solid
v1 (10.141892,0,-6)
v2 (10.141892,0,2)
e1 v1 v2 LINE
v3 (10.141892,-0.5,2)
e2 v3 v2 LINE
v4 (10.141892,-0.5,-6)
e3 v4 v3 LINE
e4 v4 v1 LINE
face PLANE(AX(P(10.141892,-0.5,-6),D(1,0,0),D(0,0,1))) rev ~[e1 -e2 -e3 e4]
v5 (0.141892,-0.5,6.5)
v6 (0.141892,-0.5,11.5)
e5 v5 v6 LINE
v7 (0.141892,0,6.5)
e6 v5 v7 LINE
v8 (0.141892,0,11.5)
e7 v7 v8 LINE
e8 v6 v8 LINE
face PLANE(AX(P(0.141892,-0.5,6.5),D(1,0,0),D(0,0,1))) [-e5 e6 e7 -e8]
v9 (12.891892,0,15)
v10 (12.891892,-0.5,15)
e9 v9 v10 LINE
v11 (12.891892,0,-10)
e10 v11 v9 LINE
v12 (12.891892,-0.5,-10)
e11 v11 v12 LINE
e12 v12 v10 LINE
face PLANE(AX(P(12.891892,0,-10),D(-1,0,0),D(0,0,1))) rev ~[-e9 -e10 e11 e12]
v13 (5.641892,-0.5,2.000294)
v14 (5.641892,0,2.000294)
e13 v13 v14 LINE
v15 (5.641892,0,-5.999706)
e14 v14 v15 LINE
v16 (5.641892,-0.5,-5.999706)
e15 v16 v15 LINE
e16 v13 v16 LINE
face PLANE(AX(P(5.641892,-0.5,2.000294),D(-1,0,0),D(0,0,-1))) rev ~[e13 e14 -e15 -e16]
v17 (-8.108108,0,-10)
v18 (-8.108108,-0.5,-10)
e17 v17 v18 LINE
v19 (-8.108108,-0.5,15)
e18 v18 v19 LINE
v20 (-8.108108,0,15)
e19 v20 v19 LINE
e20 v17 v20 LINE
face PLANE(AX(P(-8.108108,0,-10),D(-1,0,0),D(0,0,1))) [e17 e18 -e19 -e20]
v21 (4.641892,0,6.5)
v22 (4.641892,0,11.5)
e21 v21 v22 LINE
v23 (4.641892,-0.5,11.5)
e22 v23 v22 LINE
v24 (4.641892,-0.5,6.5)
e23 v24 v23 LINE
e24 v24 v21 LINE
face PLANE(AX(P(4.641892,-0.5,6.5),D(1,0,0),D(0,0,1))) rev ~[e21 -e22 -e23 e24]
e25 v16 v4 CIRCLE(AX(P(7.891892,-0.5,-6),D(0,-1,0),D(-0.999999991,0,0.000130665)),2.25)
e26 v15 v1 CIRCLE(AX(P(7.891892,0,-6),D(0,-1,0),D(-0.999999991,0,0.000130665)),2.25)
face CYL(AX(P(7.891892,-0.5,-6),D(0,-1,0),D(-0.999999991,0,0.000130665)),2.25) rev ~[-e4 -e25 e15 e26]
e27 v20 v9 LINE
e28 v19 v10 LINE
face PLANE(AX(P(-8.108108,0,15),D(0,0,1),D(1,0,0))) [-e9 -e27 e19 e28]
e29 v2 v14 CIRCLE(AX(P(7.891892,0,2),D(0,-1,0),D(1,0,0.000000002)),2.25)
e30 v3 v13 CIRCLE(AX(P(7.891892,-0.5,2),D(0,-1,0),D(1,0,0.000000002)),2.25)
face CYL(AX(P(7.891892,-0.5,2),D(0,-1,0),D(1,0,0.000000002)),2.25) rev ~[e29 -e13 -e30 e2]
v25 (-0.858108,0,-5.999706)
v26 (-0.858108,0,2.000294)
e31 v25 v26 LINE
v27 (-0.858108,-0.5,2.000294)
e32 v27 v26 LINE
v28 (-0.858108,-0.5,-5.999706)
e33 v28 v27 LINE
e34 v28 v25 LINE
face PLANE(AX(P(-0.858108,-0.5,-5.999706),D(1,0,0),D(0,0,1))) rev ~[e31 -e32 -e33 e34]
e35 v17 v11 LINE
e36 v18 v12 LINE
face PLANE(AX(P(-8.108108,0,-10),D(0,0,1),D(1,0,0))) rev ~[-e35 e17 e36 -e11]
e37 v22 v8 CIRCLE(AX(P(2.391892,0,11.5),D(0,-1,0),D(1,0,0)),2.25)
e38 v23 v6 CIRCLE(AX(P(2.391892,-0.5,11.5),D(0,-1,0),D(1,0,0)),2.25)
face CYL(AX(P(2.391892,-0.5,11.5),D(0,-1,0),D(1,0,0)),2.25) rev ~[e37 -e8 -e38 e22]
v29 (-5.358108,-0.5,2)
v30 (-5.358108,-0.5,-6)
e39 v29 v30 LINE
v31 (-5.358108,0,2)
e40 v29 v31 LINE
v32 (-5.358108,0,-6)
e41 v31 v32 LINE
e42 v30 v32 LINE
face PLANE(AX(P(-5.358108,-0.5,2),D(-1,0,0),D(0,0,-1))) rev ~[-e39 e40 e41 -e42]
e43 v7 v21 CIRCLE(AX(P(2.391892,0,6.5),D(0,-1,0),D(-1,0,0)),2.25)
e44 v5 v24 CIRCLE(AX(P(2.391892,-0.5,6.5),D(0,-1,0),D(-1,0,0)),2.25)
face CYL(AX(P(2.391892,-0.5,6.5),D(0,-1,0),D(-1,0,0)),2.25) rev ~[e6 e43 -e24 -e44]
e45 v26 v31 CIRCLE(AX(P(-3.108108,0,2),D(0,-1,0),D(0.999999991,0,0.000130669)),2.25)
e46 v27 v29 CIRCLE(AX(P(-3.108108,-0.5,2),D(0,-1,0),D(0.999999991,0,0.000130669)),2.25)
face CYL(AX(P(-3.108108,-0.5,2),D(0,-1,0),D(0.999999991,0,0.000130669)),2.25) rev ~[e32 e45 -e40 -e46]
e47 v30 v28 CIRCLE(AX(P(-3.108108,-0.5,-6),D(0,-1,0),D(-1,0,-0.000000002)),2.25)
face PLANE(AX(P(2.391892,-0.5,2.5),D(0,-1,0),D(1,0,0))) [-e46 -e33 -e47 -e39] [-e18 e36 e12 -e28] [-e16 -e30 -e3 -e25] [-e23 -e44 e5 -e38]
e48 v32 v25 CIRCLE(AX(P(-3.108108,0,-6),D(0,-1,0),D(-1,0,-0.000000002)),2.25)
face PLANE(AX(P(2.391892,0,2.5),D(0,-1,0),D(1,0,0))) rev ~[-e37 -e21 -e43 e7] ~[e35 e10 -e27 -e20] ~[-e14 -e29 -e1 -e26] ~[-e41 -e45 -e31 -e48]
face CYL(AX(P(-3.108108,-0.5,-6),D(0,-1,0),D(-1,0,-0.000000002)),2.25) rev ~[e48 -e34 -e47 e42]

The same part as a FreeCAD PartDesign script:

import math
import FreeCAD as App
import Part
import Sketcher
from FreeCAD import Vector
Q = App.Units.Quantity


def add_polygon(sketch, points):
    """Adds a closed chain of lines whose ends are joined by coincident constraints."""
    first, n = sketch.GeometryCount, len(points)
    for a, b in zip(points, points[1:] + points[:1]):
        sketch.addGeometry(Part.LineSegment(App.Vector(*a, 0), App.Vector(*b, 0)), False)
    for i in range(n):
        sketch.addConstraint(Sketcher.Constraint("Coincident", first + i, 2, first + (i + 1) % n, 1))

doc = App.newDocument("Part")
body = doc.addObject("PartDesign::Body", "Body")

# Sketch on XZ plane
sketch1 = doc.addObject("Sketcher::SketchObject", "Sketch")
body.addObject(sketch1)
sketch1.AttachmentSupport = (doc.XZ_Plane, [""])
sketch1.MapMode = "FlatFace"
add_polygon(sketch1, [(-8.108108, 15), (-8.108108, -10), (12.891892, -10), (12.891892, 15)])  # lines 0-3
sketch1.addConstraint(Sketcher.Constraint("Vertical", 0))
sketch1.addConstraint(Sketcher.Constraint("Horizontal", 1))
sketch1.addConstraint(Sketcher.Constraint("Vertical", 2))
sketch1.addConstraint(Sketcher.Constraint("Horizontal", 3))
sketch1.addConstraint(Sketcher.Constraint("DistanceX", 1, 1, 1, 2, Q("21 mm")))
sketch1.addConstraint(Sketcher.Constraint("DistanceY", 0, 2, 0, 1, Q("25 mm")))
sketch1.addConstraint(Sketcher.Constraint("DistanceY", 0, 2, -1, 1, Q("10 mm")))
sketch1.addConstraint(Sketcher.Constraint("DistanceX", 0, 2, -1, 1, Q("8.108108 mm")))
pad1 = doc.addObject("PartDesign::Pad", "Pad")
body.addObject(pad1)
pad1.Profile = sketch1
pad1.Length = 0.5

# Sketch on XZ plane
sketch2 = doc.addObject("Sketcher::SketchObject", "Sketch001")
body.addObject(sketch2)
sketch2.AttachmentSupport = (doc.XZ_Plane, [""])
sketch2.MapMode = "FlatFace"
sketch2.AttachmentOffset = App.Placement(Vector(0, 0, 0.5), App.Rotation())
sketch2.addGeometry(Part.ArcOfCircle(Part.Circle(Vector(-3.108108, -6, 0), Vector(0, 0, 1), 2.25), math.radians(-180), math.radians(0.007487)), False)
sketch2.addGeometry(Part.LineSegment(Vector(-0.858108, -5.999706, 0), Vector(-0.858108, 2.000294, 0)), False)
sketch2.addGeometry(Part.ArcOfCircle(Part.Circle(Vector(-3.108108, 2, 0), Vector(0, 0, 1), 2.25), math.radians(0.007487), math.radians(180)), False)
sketch2.addGeometry(Part.LineSegment(Vector(-5.358108, 2, 0), Vector(-5.358108, -6, 0)), False)
sketch2.addGeometry(Part.LineSegment(Vector(5.641892, 2.000294, 0), Vector(5.641892, -5.999706, 0)), False)
sketch2.addGeometry(Part.ArcOfCircle(Part.Circle(Vector(7.891892, -6, 0), Vector(0, 0, 1), 2.25), math.radians(179.992513), math.radians(360)), False)
sketch2.addGeometry(Part.LineSegment(Vector(10.141892, -6, 0), Vector(10.141892, 2, 0)), False)
sketch2.addGeometry(Part.ArcOfCircle(Part.Circle(Vector(7.891892, 2, 0), Vector(0, 0, 1), 2.25), math.radians(0), math.radians(179.992513)), False)
sketch2.addConstraint(Sketcher.Constraint("Coincident", 0, 2, 1, 1))
sketch2.addConstraint(Sketcher.Constraint("Coincident", 1, 2, 2, 1))
sketch2.addConstraint(Sketcher.Constraint("Tangent", 2, 2, 3, 1))
sketch2.addConstraint(Sketcher.Constraint("Tangent", 3, 2, 0, 1))
sketch2.addConstraint(Sketcher.Constraint("Coincident", 4, 2, 5, 1))
sketch2.addConstraint(Sketcher.Constraint("Tangent", 5, 2, 6, 1))
sketch2.addConstraint(Sketcher.Constraint("Tangent", 6, 2, 7, 1))
sketch2.addConstraint(Sketcher.Constraint("Coincident", 7, 2, 4, 1))
sketch2.addConstraint(Sketcher.Constraint("Vertical", 1))
sketch2.addConstraint(Sketcher.Constraint("Vertical", 3))
sketch2.addConstraint(Sketcher.Constraint("Vertical", 4))
sketch2.addConstraint(Sketcher.Constraint("Vertical", 6))
sketch2.addConstraint(Sketcher.Constraint("Equal", 2, 5))
sketch2.addConstraint(Sketcher.Constraint("Horizontal", 0, 3, 5, 3))
sketch2.addConstraint(Sketcher.Constraint("Horizontal", 2, 3, 7, 3))
sketch2.addConstraint(Sketcher.Constraint("Horizontal", 0, 2, 4, 2))
sketch2.addConstraint(Sketcher.Constraint("Horizontal", 1, 2, 7, 2))
sketch2.addConstraint(Sketcher.Constraint("Equal", 1, 3))
sketch2.addConstraint(Sketcher.Constraint("DistanceY", 1, 1, 1, 2, Q("8 mm")))
sketch2.addConstraint(Sketcher.Constraint("Radius", 0, Q("2.25 mm")))
sketch2.addConstraint(Sketcher.Constraint("DistanceY", 0, 3, -1, 1, Q("6 mm")))
sketch2.addConstraint(Sketcher.Constraint("DistanceX", 0, 3, 5, 3, Q("11 mm")))
sketch2.addConstraint(Sketcher.Constraint("DistanceX", -1, 1, 5, 3, Q("7.891892 mm")))
sketch2.addConstraint(Sketcher.Constraint("DistanceY", 0, 2, -1, 1, Q("5.999706 mm")))
pocket1 = doc.addObject("PartDesign::Pocket", "Pocket")
body.addObject(pocket1)
pocket1.Profile = sketch2
pocket1.Length = 25

# Sketch on XZ plane
sketch3 = doc.addObject("Sketcher::SketchObject", "Sketch002")
body.addObject(sketch3)
sketch3.AttachmentSupport = (doc.XZ_Plane, [""])
sketch3.MapMode = "FlatFace"
sketch3.AttachmentOffset = App.Placement(Vector(0, 0, 0.5), App.Rotation())
sketch3.addGeometry(Part.LineSegment(Vector(0.141892, 11.5, 0), Vector(0.141892, 6.5, 0)), False)
sketch3.addGeometry(Part.ArcOfCircle(Part.Circle(Vector(2.391892, 6.5, 0), Vector(0, 0, 1), 2.25), math.radians(180), math.radians(360)), False)
sketch3.addGeometry(Part.LineSegment(Vector(4.641892, 6.5, 0), Vector(4.641892, 11.5, 0)), False)
sketch3.addGeometry(Part.ArcOfCircle(Part.Circle(Vector(2.391892, 11.5, 0), Vector(0, 0, 1), 2.25), math.radians(0), math.radians(180)), False)
sketch3.addConstraint(Sketcher.Constraint("Tangent", 0, 2, 1, 1))
sketch3.addConstraint(Sketcher.Constraint("Tangent", 1, 2, 2, 1))
sketch3.addConstraint(Sketcher.Constraint("Tangent", 2, 2, 3, 1))
sketch3.addConstraint(Sketcher.Constraint("Tangent", 3, 2, 0, 1))
sketch3.addConstraint(Sketcher.Constraint("Vertical", 0))
sketch3.addConstraint(Sketcher.Constraint("Vertical", 2))
sketch3.addConstraint(Sketcher.Constraint("DistanceY", 0, 2, 0, 1, Q("5 mm")))
sketch3.addConstraint(Sketcher.Constraint("Radius", 1, Q("2.25 mm")))
sketch3.addConstraint(Sketcher.Constraint("DistanceY", -1, 1, 1, 3, Q("6.5 mm")))
sketch3.addConstraint(Sketcher.Constraint("DistanceX", -1, 1, 1, 3, Q("2.391892 mm")))
pocket2 = doc.addObject("PartDesign::Pocket", "Pocket001")
body.addObject(pocket2)
pocket2.Profile = sketch3
pocket2.Length = 25

doc.recompute()
